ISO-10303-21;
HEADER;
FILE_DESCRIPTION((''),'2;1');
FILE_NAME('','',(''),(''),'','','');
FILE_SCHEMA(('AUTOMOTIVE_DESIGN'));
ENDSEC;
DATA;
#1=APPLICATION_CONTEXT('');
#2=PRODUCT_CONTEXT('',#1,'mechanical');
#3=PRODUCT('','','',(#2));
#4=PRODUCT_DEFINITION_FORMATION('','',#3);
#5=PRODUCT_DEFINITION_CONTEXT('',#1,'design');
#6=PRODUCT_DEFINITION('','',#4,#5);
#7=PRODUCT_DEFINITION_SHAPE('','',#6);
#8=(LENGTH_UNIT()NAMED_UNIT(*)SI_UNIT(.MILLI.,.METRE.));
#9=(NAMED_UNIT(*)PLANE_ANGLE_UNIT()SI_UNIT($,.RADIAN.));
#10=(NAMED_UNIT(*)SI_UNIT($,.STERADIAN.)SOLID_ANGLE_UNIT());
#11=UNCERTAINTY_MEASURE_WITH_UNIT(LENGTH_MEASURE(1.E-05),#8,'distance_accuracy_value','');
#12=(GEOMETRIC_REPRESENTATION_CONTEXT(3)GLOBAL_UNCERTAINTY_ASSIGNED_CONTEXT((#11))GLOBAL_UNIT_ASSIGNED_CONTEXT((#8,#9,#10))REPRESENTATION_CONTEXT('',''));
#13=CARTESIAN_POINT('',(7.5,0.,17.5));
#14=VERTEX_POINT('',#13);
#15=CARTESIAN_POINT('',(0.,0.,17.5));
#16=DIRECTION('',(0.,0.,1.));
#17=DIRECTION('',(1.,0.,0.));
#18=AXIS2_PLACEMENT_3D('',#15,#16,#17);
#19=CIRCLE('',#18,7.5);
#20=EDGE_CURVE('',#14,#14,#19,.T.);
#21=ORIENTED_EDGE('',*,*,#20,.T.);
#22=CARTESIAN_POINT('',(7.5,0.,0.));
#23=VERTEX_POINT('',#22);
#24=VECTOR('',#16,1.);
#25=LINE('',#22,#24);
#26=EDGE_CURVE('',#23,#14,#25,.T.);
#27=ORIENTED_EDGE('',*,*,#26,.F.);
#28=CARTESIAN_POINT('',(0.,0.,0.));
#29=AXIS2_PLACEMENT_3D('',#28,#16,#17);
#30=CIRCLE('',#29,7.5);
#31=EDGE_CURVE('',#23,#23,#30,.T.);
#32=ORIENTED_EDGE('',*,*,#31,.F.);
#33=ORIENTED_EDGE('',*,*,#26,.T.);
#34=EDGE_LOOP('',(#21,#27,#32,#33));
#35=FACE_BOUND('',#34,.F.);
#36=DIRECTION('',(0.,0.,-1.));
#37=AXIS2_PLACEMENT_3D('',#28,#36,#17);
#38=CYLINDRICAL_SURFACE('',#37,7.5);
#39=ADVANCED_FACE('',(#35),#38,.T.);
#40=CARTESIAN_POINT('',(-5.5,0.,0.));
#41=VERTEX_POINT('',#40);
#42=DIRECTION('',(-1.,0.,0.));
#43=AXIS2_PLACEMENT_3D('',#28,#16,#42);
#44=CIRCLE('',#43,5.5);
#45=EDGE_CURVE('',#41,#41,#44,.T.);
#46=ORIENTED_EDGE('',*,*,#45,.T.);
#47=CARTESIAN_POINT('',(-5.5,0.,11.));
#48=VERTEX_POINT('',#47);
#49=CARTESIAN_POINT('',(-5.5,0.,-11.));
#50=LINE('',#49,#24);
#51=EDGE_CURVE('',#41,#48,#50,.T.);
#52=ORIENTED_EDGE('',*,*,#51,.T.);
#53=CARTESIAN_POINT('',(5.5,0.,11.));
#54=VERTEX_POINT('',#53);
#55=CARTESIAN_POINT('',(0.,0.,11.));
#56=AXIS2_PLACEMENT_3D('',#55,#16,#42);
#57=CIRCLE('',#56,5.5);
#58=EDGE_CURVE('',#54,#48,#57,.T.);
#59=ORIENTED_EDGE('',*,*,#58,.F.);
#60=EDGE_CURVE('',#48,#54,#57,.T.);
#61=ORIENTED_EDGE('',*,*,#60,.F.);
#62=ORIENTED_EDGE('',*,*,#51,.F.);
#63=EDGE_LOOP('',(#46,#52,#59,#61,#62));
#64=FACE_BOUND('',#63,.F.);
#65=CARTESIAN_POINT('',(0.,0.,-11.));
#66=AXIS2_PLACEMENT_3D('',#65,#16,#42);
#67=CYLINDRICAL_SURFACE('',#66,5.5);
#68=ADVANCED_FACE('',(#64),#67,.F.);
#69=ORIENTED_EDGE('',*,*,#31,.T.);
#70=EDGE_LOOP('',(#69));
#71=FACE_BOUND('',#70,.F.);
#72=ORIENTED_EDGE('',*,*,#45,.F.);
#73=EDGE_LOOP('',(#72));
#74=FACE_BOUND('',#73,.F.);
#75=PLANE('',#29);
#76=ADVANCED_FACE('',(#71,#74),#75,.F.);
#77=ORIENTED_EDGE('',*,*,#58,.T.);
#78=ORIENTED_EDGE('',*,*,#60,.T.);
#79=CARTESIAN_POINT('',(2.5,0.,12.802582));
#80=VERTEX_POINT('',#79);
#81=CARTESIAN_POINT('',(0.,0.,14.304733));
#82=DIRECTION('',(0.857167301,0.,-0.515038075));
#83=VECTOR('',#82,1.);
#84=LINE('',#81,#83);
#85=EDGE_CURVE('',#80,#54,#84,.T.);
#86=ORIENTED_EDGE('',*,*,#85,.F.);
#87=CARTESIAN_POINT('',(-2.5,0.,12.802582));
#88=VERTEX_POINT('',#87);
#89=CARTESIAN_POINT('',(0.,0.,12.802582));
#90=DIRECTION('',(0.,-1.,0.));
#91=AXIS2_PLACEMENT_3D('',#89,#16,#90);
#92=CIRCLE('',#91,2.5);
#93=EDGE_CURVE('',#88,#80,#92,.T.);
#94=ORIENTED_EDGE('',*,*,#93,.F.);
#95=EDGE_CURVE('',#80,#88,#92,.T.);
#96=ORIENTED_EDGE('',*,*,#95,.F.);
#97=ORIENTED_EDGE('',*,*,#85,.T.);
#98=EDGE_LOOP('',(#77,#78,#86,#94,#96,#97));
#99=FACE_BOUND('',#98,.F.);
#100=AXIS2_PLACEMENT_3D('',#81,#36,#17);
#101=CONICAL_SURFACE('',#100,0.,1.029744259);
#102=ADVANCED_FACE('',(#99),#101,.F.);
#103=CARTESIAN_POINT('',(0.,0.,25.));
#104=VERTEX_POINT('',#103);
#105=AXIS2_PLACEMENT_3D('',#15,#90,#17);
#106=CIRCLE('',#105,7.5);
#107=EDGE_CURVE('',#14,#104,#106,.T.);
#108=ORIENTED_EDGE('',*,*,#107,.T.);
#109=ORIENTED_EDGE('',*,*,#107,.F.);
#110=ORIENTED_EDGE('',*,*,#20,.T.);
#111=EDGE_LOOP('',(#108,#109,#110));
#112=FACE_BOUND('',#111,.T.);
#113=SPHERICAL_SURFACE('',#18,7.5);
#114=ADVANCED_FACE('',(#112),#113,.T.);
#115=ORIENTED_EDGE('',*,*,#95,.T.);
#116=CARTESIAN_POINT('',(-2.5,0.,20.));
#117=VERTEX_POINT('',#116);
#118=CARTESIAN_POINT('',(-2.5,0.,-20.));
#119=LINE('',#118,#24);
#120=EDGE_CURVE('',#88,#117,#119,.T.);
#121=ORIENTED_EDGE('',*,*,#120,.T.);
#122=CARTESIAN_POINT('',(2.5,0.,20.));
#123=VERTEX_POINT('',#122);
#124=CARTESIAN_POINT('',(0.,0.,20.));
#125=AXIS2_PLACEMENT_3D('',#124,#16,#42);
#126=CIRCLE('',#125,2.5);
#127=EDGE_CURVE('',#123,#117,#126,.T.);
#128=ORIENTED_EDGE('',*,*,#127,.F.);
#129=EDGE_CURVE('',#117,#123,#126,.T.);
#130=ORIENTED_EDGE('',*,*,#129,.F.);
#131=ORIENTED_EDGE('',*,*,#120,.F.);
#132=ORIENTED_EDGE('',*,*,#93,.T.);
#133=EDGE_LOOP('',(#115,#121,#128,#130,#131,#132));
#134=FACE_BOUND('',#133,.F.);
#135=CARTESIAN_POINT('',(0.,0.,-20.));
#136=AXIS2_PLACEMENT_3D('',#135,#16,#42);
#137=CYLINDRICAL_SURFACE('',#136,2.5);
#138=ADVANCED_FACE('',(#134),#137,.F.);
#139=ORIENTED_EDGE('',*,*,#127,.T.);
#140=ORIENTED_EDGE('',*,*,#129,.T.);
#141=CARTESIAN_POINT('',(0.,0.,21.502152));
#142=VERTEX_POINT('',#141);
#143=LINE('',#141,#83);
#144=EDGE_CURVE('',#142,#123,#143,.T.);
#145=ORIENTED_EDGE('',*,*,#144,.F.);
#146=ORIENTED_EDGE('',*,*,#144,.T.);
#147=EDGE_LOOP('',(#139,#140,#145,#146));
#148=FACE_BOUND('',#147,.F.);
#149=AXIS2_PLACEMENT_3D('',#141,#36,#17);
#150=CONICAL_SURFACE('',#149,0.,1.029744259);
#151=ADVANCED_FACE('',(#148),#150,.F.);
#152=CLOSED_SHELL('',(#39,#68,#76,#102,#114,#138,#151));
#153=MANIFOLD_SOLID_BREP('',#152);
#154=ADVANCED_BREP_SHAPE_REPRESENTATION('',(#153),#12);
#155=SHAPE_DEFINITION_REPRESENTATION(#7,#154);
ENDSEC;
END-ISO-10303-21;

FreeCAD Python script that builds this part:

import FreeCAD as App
import Part
import Sketcher
Q = App.Units.Quantity


def edges_at(feature, points):
    """Names of the edges that pass closest to the given points."""
    edges = feature.Shape.Edges
    near = lambda p: min(range(len(edges)), key=lambda i: edges[i].distToShape(Part.Vertex(*p))[0])
    return sorted({f"Edge{near(p) + 1}" for p in points})

doc = App.newDocument("Part")
body = doc.addObject("PartDesign::Body", "Body")

# Sketch on XY plane
sketch1 = body.newObject("Sketcher::SketchObject", "Sketch")
sketch1.AttachmentSupport = (doc.getObject("XY_Plane"), [""])
sketch1.MapMode = "FlatFace"
sketch1.addGeometry(Part.Circle(App.Vector(0, 0, 0), App.Vector(0, 0, 1), 8), False)
sketch1.addConstraint([
    Sketcher.Constraint("Coincident", 0, 3, -1, 1),
    Sketcher.Constraint("Diameter", 0, Q("15 mm")),
])
pad1 = body.newObject("PartDesign::Pad", "Pad")
pad1.Profile = sketch1
pad1.Length = 25

# Sketch on XY plane
sketch2 = body.newObject("Sketcher::SketchObject", "Sketch001")
sketch2.AttachmentSupport = (doc.getObject("XY_Plane"), [""])
sketch2.MapMode = "FlatFace"
sketch2.addGeometry(Part.Circle(App.Vector(0, 0, 0), App.Vector(0, 0, 1), 2.5), False)
sketch2.addConstraint([
    Sketcher.Constraint("Coincident", 0, 3, -1, 1),
    Sketcher.Constraint("Diameter", 0, Q("5 mm")),
])
doc.recompute()
hole = body.newObject("PartDesign::Hole", "Hole")
hole.Profile = sketch2
hole.ThreadType = "None"
hole.Diameter = 5
hole.DepthType = "Dimension"
hole.Depth = 20
hole.DrillPoint = "Angled"
hole.DrillPointAngle = 118
hole.Reversed = True

# Sketch on XY plane
sketch3 = body.newObject("Sketcher::SketchObject", "Sketch002")
sketch3.AttachmentSupport = (doc.getObject("XY_Plane"), [""])
sketch3.MapMode = "FlatFace"
sketch3.addGeometry(Part.Circle(App.Vector(0, 0, 0), App.Vector(0, 0, 1), 6), False)
sketch3.addConstraint([
    Sketcher.Constraint("Coincident", 0, 3, -1, 1),
    Sketcher.Constraint("Diameter", 0, Q("11 mm")),
])
doc.recompute()
hole2 = body.newObject("PartDesign::Hole", "Hole001")
hole2.Profile = sketch3
hole2.ThreadType = "None"
hole2.Diameter = 11
hole2.DepthType = "Dimension"
hole2.Depth = 11
hole2.DrillPoint = "Angled"
hole2.DrillPointAngle = 118
hole2.Reversed = True
doc.recompute()

fillet = body.newObject("PartDesign::Fillet", "Fillet")
fillet.Base = (hole2, edges_at(hole2, [(-7.5, 0, 25)]))
fillet.Radius = 7.5

doc.recompute()
